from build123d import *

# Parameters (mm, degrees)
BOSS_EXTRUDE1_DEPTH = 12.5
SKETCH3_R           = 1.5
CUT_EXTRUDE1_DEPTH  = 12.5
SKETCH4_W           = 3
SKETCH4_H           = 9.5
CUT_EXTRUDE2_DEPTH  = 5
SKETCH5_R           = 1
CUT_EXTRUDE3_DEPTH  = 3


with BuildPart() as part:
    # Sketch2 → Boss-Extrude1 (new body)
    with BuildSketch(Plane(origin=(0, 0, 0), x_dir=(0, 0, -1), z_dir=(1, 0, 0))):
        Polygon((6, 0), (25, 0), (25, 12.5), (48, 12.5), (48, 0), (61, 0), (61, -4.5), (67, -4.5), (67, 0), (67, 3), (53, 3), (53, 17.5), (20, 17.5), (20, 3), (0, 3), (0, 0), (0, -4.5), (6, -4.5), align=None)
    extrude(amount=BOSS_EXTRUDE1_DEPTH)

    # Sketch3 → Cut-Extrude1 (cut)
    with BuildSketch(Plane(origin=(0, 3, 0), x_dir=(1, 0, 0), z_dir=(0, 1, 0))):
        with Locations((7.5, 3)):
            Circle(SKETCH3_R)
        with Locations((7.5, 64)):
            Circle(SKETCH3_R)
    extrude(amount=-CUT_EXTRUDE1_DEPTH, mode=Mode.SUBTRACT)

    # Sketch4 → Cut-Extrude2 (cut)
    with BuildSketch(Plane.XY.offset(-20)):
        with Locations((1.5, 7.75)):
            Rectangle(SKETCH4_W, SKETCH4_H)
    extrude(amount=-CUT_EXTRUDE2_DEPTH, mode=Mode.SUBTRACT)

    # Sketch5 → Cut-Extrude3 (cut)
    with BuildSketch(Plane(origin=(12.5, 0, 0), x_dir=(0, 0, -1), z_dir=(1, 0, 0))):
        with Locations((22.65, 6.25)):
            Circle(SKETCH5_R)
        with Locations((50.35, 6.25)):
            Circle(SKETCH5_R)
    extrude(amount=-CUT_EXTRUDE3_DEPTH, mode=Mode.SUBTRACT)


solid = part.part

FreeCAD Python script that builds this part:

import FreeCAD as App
import Part
import Sketcher

V = App.Vector
Q = App.Units.Quantity

doc = App.newDocument("Part")
body = doc.addObject("PartDesign::Body", "Body")

sketch1 = body.newObject("Sketcher::SketchObject", "Sketch")
sketch1.AttachmentSupport = (doc.getObject("YZ_Plane"), [""])
sketch1.MapMode = "FlatFace"
sketch1.addGeometry([
    Part.LineSegment(V(0, -6, 0), V(0, -25, 0)),
    Part.LineSegment(V(0, -25, 0), V(12.5, -25, 0)),
    Part.LineSegment(V(12.5, -25, 0), V(12.5, -48, 0)),
    Part.LineSegment(V(12.5, -48, 0), V(0, -48, 0)),
    Part.LineSegment(V(0, -48, 0), V(0, -61, 0)),
    Part.LineSegment(V(0, -61, 0), V(-4.5, -61, 0)),
    Part.LineSegment(V(-4.5, -61, 0), V(-4.5, -67, 0)),
    Part.LineSegment(V(-4.5, -67, 0), V(3, -67, 0)),
    Part.LineSegment(V(3, -67, 0), V(3, -53, 0)),
    Part.LineSegment(V(3, -53, 0), V(17.5, -53, 0)),
    Part.LineSegment(V(17.5, -53, 0), V(17.5, -20, 0)),
    Part.LineSegment(V(17.5, -20, 0), V(3, -20, 0)),
    Part.LineSegment(V(3, -20, 0), V(3, 0, 0)),
    Part.LineSegment(V(3, 0, 0), V(-4.5, 0, 0)),
    Part.LineSegment(V(-4.5, 0, 0), V(-4.5, -6, 0)),
    Part.LineSegment(V(-4.5, -6, 0), V(0, -6, 0)),
], False)
sketch1.addConstraint([
    Sketcher.Constraint("Coincident", 0, 2, 1, 1),
    Sketcher.Constraint("Coincident", 1, 2, 2, 1),
    Sketcher.Constraint("Coincident", 2, 2, 3, 1),
    Sketcher.Constraint("Coincident", 3, 2, 4, 1),
    Sketcher.Constraint("Coincident", 4, 2, 5, 1),
    Sketcher.Constraint("Coincident", 5, 2, 6, 1),
    Sketcher.Constraint("Coincident", 6, 2, 7, 1),
    Sketcher.Constraint("Coincident", 7, 2, 8, 1),
    Sketcher.Constraint("Coincident", 8, 2, 9, 1),
    Sketcher.Constraint("Coincident", 9, 2, 10, 1),
    Sketcher.Constraint("Coincident", 10, 2, 11, 1),
    Sketcher.Constraint("Coincident", 11, 2, 12, 1),
    Sketcher.Constraint("Coincident", 12, 2, 13, 1),
    Sketcher.Constraint("Coincident", 13, 2, 14, 1),
    Sketcher.Constraint("Coincident", 14, 2, 15, 1),
    Sketcher.Constraint("Coincident", 15, 2, 0, 1),
    Sketcher.Constraint("Vertical", 0),
    Sketcher.Constraint("Horizontal", 1),
    Sketcher.Constraint("Vertical", 2),
    Sketcher.Constraint("Horizontal", 3),
    Sketcher.Constraint("Vertical", 4),
    Sketcher.Constraint("Horizontal", 5),
    Sketcher.Constraint("Vertical", 6),
    Sketcher.Constraint("Horizontal", 7),
    Sketcher.Constraint("Vertical", 8),
    Sketcher.Constraint("Horizontal", 9),
    Sketcher.Constraint("Vertical", 10),
    Sketcher.Constraint("Horizontal", 11),
    Sketcher.Constraint("Vertical", 12),
    Sketcher.Constraint("Horizontal", 13),
    Sketcher.Constraint("Vertical", 14),
    Sketcher.Constraint("Horizontal", 15),
    Sketcher.Constraint("PointOnObject", 0, 2, -2),
    Sketcher.Constraint("PointOnObject", 3, 2, -2),
    Sketcher.Constraint("PointOnObject", 12, 2, -1),
    Sketcher.Constraint("Vertical", 8, 2, 11, 2),
    Sketcher.Constraint("Vertical", 6, 2, 13, 2),
    Sketcher.Constraint("Equal", 6, 14),
    Sketcher.Constraint("DistanceY", 0, 2, 0, 1, Q("19 mm")),
    Sketcher.Constraint("DistanceY", 2, 2, 2, 1, Q("23 mm")),
    Sketcher.Constraint("DistanceY", 4, 2, 4, 1, Q("13 mm")),
    Sketcher.Constraint("DistanceY", 6, 2, 6, 1, Q("6 mm")),
    Sketcher.Constraint("DistanceY", 8, 1, 8, 2, Q("14 mm")),
    Sketcher.Constraint("DistanceY", 10, 1, 10, 2, Q("33 mm")),
    Sketcher.Constraint("DistanceX", 1, 1, 1, 2, Q("12.5 mm")),
    Sketcher.Constraint("DistanceX", 5, 2, 5, 1, Q("4.5 mm")),
    Sketcher.Constraint("DistanceX", 7, 1, 7, 2, Q("7.5 mm")),
    Sketcher.Constraint("DistanceX", 9, 1, 9, 2, Q("14.5 mm")),
])
pad1 = body.newObject("PartDesign::Pad", "Pad")
pad1.Profile = sketch1
pad1.Length = 12.5

sketch2 = body.newObject("Sketcher::SketchObject", "Sketch001")
sketch2.AttachmentSupport = (doc.getObject("XZ_Plane"), [""])
sketch2.MapMode = "FlatFace"
sketch2.AttachmentOffset = App.Placement(V(0, 0, -3), App.Rotation())
sketch2.addGeometry([
    Part.Circle(V(7.5, -3, 0), V(0, 0, 1), 1.5),
    Part.Circle(V(7.5, -64, 0), V(0, 0, 1), 1.5),
], False)
sketch2.addConstraint([
    Sketcher.Constraint("Equal", 0, 1),
    Sketcher.Constraint("Vertical", 0, 3, 1, 3),
    Sketcher.Constraint("Diameter", 0, Q("3 mm")),
    Sketcher.Constraint("DistanceY", 0, 3, -1, 1, Q("3 mm")),
    Sketcher.Constraint("DistanceY", 1, 3, -1, 1, Q("64 mm")),
    Sketcher.Constraint("DistanceX", -1, 1, 0, 3, Q("7.5 mm")),
])
pocket1 = body.newObject("PartDesign::Pocket", "Pocket")
pocket1.Profile = sketch2
pocket1.Length = 12.5
pocket1.Reversed = True

sketch3 = body.newObject("Sketcher::SketchObject", "Sketch002")
sketch3.AttachmentSupport = (doc.getObject("XY_Plane"), [""])
sketch3.MapMode = "FlatFace"
sketch3.AttachmentOffset = App.Placement(V(0, 0, -20), App.Rotation())
sketch3.addGeometry([
    Part.LineSegment(V(0, 12.5, 0), V(0, 3, 0)),
    Part.LineSegment(V(0, 3, 0), V(3, 3, 0)),
    Part.LineSegment(V(3, 3, 0), V(3, 12.5, 0)),
    Part.LineSegment(V(3, 12.5, 0), V(0, 12.5, 0)),
], False)
sketch3.addConstraint([
    Sketcher.Constraint("Coincident", 0, 2, 1, 1),
    Sketcher.Constraint("Coincident", 1, 2, 2, 1),
    Sketcher.Constraint("Coincident", 2, 2, 3, 1),
    Sketcher.Constraint("Coincident", 3, 2, 0, 1),
    Sketcher.Constraint("Vertical", 0),
    Sketcher.Constraint("Horizontal", 1),
    Sketcher.Constraint("Vertical", 2),
    Sketcher.Constraint("Horizontal", 3),
    Sketcher.Constraint("PointOnObject", 0, 2, -2),
    Sketcher.Constraint("DistanceX", 1, 1, 1, 2, Q("3 mm")),
    Sketcher.Constraint("DistanceY", 0, 2, 0, 1, Q("9.5 mm")),
    Sketcher.Constraint("DistanceY", -1, 1, 0, 2, Q("3 mm")),
])
pocket2 = body.newObject("PartDesign::Pocket", "Pocket001")
pocket2.Profile = sketch3
pocket2.Length = 5

sketch4 = body.newObject("Sketcher::SketchObject", "Sketch003")
sketch4.AttachmentSupport = (doc.getObject("YZ_Plane"), [""])
sketch4.MapMode = "FlatFace"
sketch4.AttachmentOffset = App.Placement(V(0, 0, 12.5), App.Rotation())
sketch4.addGeometry([
    Part.Circle(V(6.2, -22.6, 0), V(0, 0, 1), 1),
    Part.Circle(V(6.2, -50.4, 0), V(0, 0, 1), 1),
], False)
sketch4.addConstraint([
    Sketcher.Constraint("Equal", 0, 1),
    Sketcher.Constraint("Vertical", 0, 3, 1, 3),
    Sketcher.Constraint("Diameter", 0, Q("2 mm")),
    Sketcher.Constraint("DistanceY", 1, 3, 0, 3, Q("27.7 mm")),
    Sketcher.Constraint("DistanceX", -1, 1, 0, 3, Q("6.25 mm")),
    Sketcher.Constraint("DistanceY", 0, 3, -1, 1, Q("22.65 mm")),
])
pocket3 = body.newObject("PartDesign::Pocket", "Pocket002")
pocket3.Profile = sketch4
pocket3.Length = 3

doc.recompute()
